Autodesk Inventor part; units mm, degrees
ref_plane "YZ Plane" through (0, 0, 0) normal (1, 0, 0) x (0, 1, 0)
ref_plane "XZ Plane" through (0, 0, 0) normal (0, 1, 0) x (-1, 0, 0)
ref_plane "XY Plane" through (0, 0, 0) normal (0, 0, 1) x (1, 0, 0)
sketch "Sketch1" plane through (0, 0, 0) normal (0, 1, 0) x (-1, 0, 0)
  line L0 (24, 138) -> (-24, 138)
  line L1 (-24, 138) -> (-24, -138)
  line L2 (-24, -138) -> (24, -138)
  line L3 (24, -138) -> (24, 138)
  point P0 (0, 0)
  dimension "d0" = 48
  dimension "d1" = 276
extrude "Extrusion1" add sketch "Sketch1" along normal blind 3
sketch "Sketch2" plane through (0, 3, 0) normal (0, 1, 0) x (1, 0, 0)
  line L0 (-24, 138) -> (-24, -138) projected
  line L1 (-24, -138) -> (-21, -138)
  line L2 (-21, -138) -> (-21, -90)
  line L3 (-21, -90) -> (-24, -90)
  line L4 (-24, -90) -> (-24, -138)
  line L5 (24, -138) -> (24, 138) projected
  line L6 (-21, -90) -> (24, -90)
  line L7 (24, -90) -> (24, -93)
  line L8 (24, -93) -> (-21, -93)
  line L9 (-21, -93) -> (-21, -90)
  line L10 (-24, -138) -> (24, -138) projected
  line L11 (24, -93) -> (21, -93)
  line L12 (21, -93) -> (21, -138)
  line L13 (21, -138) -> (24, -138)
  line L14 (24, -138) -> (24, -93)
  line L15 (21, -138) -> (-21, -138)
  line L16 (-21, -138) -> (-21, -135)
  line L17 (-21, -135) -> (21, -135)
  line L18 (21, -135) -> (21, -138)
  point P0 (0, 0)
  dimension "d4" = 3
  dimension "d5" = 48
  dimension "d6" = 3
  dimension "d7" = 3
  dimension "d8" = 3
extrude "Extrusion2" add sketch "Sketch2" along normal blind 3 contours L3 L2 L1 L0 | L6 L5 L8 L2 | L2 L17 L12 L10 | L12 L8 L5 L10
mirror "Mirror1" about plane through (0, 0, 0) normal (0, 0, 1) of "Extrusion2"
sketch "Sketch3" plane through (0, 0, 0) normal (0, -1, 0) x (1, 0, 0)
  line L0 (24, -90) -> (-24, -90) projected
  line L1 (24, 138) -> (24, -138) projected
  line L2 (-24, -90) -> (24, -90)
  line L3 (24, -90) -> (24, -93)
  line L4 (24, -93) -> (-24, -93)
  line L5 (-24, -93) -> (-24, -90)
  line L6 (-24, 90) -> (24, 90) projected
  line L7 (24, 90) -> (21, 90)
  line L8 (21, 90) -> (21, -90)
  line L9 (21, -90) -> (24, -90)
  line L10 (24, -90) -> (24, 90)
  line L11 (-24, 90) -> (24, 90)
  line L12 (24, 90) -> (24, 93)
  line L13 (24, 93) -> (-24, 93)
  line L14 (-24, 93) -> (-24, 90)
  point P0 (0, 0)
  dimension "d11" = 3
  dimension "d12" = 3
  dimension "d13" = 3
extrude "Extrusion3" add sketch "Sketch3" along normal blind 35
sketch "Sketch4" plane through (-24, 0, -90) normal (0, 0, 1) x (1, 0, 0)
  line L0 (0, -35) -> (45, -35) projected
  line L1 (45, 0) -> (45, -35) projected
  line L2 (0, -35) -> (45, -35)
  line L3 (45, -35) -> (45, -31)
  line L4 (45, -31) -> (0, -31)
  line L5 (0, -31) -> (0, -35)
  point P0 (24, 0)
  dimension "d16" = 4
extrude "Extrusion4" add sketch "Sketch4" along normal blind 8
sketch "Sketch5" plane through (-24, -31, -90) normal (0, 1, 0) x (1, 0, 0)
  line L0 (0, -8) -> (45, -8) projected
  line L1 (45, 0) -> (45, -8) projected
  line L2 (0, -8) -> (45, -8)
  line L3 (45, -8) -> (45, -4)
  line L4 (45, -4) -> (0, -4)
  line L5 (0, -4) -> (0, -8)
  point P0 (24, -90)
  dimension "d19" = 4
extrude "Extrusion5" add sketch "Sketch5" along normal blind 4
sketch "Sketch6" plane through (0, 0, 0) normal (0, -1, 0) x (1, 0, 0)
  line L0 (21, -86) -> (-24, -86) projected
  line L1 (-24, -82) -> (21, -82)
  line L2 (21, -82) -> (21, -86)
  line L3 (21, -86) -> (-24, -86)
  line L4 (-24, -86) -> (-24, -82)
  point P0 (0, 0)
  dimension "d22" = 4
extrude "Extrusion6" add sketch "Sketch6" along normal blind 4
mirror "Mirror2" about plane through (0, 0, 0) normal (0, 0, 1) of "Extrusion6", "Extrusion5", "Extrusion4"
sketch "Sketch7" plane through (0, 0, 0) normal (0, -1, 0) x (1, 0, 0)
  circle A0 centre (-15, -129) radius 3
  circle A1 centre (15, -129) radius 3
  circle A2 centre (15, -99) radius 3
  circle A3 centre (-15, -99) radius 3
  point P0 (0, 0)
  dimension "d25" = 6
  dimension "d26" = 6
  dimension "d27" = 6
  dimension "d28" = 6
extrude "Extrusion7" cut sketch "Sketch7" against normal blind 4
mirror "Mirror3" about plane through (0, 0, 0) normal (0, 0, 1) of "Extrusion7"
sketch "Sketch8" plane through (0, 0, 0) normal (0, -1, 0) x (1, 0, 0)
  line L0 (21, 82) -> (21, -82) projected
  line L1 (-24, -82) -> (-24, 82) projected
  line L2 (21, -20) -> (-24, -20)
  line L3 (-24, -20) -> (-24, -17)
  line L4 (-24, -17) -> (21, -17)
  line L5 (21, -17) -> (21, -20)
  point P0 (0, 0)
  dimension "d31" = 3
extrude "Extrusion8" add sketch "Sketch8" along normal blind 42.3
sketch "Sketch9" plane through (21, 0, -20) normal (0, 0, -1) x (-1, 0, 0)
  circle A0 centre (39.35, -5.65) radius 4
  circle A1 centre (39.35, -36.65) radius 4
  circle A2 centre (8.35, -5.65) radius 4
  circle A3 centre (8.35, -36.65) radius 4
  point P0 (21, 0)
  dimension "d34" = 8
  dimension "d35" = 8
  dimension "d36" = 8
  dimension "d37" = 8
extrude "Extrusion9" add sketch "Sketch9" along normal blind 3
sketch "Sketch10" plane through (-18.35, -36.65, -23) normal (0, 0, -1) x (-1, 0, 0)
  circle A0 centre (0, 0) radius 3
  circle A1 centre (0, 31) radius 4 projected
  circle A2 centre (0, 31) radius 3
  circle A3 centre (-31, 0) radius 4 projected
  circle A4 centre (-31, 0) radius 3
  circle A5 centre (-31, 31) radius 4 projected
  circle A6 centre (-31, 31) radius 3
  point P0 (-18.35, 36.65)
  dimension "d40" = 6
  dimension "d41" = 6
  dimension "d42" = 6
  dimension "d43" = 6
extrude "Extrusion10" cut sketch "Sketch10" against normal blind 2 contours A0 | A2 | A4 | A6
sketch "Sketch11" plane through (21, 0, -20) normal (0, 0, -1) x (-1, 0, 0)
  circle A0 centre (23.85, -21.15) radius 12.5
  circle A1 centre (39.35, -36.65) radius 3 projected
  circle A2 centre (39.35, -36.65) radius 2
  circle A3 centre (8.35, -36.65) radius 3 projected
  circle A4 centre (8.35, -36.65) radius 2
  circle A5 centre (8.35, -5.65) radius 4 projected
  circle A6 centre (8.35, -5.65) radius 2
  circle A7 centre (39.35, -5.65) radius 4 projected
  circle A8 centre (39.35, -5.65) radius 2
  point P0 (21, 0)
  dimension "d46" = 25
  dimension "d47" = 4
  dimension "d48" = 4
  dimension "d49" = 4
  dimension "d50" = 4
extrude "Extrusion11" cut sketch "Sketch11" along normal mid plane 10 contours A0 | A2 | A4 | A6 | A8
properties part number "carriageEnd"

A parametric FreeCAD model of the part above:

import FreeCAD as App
import Part
import Sketcher
from FreeCAD import Vector

doc = App.newDocument("Part")
body = doc.addObject("PartDesign::Body", "Body")

# Sketch on XZ plane
sketch1 = doc.addObject("Sketcher::SketchObject", "Sketch")
body.addObject(sketch1)
sketch1.AttachmentSupport = (doc.XZ_Plane, [""])
sketch1.MapMode = "FlatFace"
sketch1.addGeometry([
    Part.LineSegment(Vector(-24, -138, 0), Vector(-24, 138, 0)),
    Part.LineSegment(Vector(-24, 138, 0), Vector(24, 138, 0)),
    Part.LineSegment(Vector(24, 138, 0), Vector(24, -138, 0)),
    Part.LineSegment(Vector(24, -138, 0), Vector(-24, -138, 0)),
], False)
sketch1.addConstraint([
    Sketcher.Constraint("Coincident", 0, 2, 1, 1),
    Sketcher.Constraint("Coincident", 1, 2, 2, 1),
    Sketcher.Constraint("Coincident", 2, 2, 3, 1),
    Sketcher.Constraint("Coincident", 3, 2, 0, 1),
    Sketcher.Constraint("Vertical", 0),
    Sketcher.Constraint("Horizontal", 1),
    Sketcher.Constraint("Vertical", 2),
    Sketcher.Constraint("Horizontal", 3),
    Sketcher.Constraint("Symmetric", 0, 2, 2, 2, -1, 1),
    Sketcher.Constraint("DistanceX", 1, 1, 1, 2, 48.0),
    Sketcher.Constraint("DistanceY", 0, 1, 0, 2, 276.0),
])
pad1 = doc.addObject("PartDesign::Pad", "Pad")
body.addObject(pad1)
pad1.Profile = sketch1
pad1.Length = 3
pad1.Reversed = True

# Sketch on XZ plane
sketch2 = doc.addObject("Sketcher::SketchObject", "Sketch001")
body.addObject(sketch2)
sketch2.AttachmentSupport = (doc.XZ_Plane, [""])
sketch2.MapMode = "FlatFace"
sketch2.AttachmentOffset = App.Placement(Vector(0, 0, -3), App.Rotation())
sketch2.addGeometry([
    Part.LineSegment(Vector(-24, 90, 0), Vector(-24, 138, 0)),  # 0
    Part.LineSegment(Vector(-24, 138, 0), Vector(24, 138, 0)),  # 1
    Part.LineSegment(Vector(24, 138, 0), Vector(24, 90, 0)),  # 2
    Part.LineSegment(Vector(24, 90, 0), Vector(-24, 90, 0)),  # 3
    Part.LineSegment(Vector(-21, 135, 0), Vector(-21, 93, 0)),  # 4
    Part.LineSegment(Vector(-21, 93, 0), Vector(21, 93, 0)),  # 5
    Part.LineSegment(Vector(21, 93, 0), Vector(21, 135, 0)),  # 6
    Part.LineSegment(Vector(21, 135, 0), Vector(-21, 135, 0)),  # 7
], False)
sketch2.addConstraint([
    Sketcher.Constraint("Coincident", 0, 2, 1, 1),
    Sketcher.Constraint("Coincident", 1, 2, 2, 1),
    Sketcher.Constraint("Coincident", 2, 2, 3, 1),
    Sketcher.Constraint("Coincident", 3, 2, 0, 1),
    Sketcher.Constraint("Coincident", 4, 2, 5, 1),
    Sketcher.Constraint("Coincident", 5, 2, 6, 1),
    Sketcher.Constraint("Coincident", 6, 2, 7, 1),
    Sketcher.Constraint("Coincident", 7, 2, 4, 1),
    Sketcher.Constraint("Vertical", 0),
    Sketcher.Constraint("Horizontal", 1),
    Sketcher.Constraint("Vertical", 2),
    Sketcher.Constraint("Horizontal", 3),
    Sketcher.Constraint("Vertical", 4),
    Sketcher.Constraint("Horizontal", 5),
    Sketcher.Constraint("Vertical", 6),
    Sketcher.Constraint("Horizontal", 7),
    Sketcher.Constraint("Equal", 3, 0),
    Sketcher.Constraint("Equal", 7, 4),
    Sketcher.Constraint("DistanceX", 1, 1, 1, 2, 48.0),
    Sketcher.Constraint("DistanceX", 3, 2, 4, 2, 3.0),
    Sketcher.Constraint("DistanceY", 3, 2, 4, 2, 3.0),
    Sketcher.Constraint("DistanceX", 5, 2, 2, 2, 3.0),
    Sketcher.Constraint("DistanceX", 0, 2, -1, 1, 24.0),
    Sketcher.Constraint("DistanceY", -1, 1, 0, 2, 138.0),
])
pad2 = doc.addObject("PartDesign::Pad", "Pad001")
body.addObject(pad2)
pad2.Profile = sketch2
pad2.Length = 3
pad2.Reversed = True
doc.recompute()

mirrored = doc.addObject("PartDesign::Mirrored", "Mirrored")
body.addObject(mirrored)
mirrored.Originals = [pad2]
mirrored.MirrorPlane = (doc.XY_Plane, [""])
body.Tip = mirrored

# Sketch on XZ plane
sketch3 = doc.addObject("Sketcher::SketchObject", "Sketch002")
body.addObject(sketch3)
sketch3.AttachmentSupport = (doc.XZ_Plane, [""])
sketch3.MapMode = "FlatFace"
sketch3.addGeometry([
    Part.LineSegment(Vector(24, -93, 0), Vector(24, 93, 0)),  # 0
    Part.LineSegment(Vector(24, 93, 0), Vector(-24, 93, 0)),  # 1
    Part.LineSegment(Vector(-24, 93, 0), Vector(-24, 90, 0)),  # 2
    Part.LineSegment(Vector(-24, 90, 0), Vector(21, 90, 0)),  # 3
    Part.LineSegment(Vector(21, 90, 0), Vector(21, -90, 0)),  # 4
    Part.LineSegment(Vector(21, -90, 0), Vector(-24, -90, 0)),  # 5
    Part.LineSegment(Vector(-24, -90, 0), Vector(-24, -93, 0)),  # 6
    Part.LineSegment(Vector(-24, -93, 0), Vector(24, -93, 0)),  # 7
], False)
sketch3.addConstraint([
    Sketcher.Constraint("Coincident", 0, 2, 1, 1),
    Sketcher.Constraint("Coincident", 1, 2, 2, 1),
    Sketcher.Constraint("Coincident", 2, 2, 3, 1),
    Sketcher.Constraint("Coincident", 3, 2, 4, 1),
    Sketcher.Constraint("Coincident", 4, 2, 5, 1),
    Sketcher.Constraint("Coincident", 5, 2, 6, 1),
    Sketcher.Constraint("Coincident", 6, 2, 7, 1),
    Sketcher.Constraint("Coincident", 7, 2, 0, 1),
    Sketcher.Constraint("Vertical", 0),
    Sketcher.Constraint("Horizontal", 1),
    Sketcher.Constraint("Vertical", 2),
    Sketcher.Constraint("Horizontal", 3),
    Sketcher.Constraint("Vertical", 4),
    Sketcher.Constraint("Horizontal", 5),
    Sketcher.Constraint("Vertical", 6),
    Sketcher.Constraint("Horizontal", 7),
    Sketcher.Constraint("Symmetric", 0, 2, 6, 2, -1, 1),
    Sketcher.Constraint("Symmetric", 2, 2, 5, 2, -1),
    Sketcher.Constraint("DistanceY", 2, 2, 2, 1, 3.0),
    Sketcher.Constraint("DistanceX", 3, 2, 0, 2, 3.0),
    Sketcher.Constraint("DistanceX", 1, 2, 1, 1, 48.0),
    Sketcher.Constraint("DistanceY", 0, 1, 0, 2, 186.0),
])
pad3 = doc.addObject("PartDesign::Pad", "Pad002")
body.addObject(pad3)
pad3.Profile = sketch3
pad3.Length = 35

# Sketch on XY plane
sketch4 = doc.addObject("Sketcher::SketchObject", "Sketch003")
body.addObject(sketch4)
sketch4.AttachmentSupport = (doc.XY_Plane, [""])
sketch4.MapMode = "FlatFace"
sketch4.AttachmentOffset = App.Placement(Vector(0, 0, -90), App.Rotation())
sketch4.addGeometry([
    Part.LineSegment(Vector(-24, -31, 0), Vector(-24, -35, 0)),
    Part.LineSegment(Vector(-24, -35, 0), Vector(21, -35, 0)),
    Part.LineSegment(Vector(21, -35, 0), Vector(21, -31, 0)),
    Part.LineSegment(Vector(21, -31, 0), Vector(-24, -31, 0)),
], False)
sketch4.addConstraint([
    Sketcher.Constraint("Coincident", 0, 2, 1, 1),
    Sketcher.Constraint("Coincident", 1, 2, 2, 1),
    Sketcher.Constraint("Coincident", 2, 2, 3, 1),
    Sketcher.Constraint("Coincident", 3, 2, 0, 1),
    Sketcher.Constraint("Vertical", 0),
    Sketcher.Constraint("Horizontal", 1),
    Sketcher.Constraint("Vertical", 2),
    Sketcher.Constraint("Horizontal", 3),
    Sketcher.Constraint("DistanceY", 0, 2, 0, 1, 4.0),
    Sketcher.Constraint("DistanceX", 1, 1, 1, 2, 45.0),
    Sketcher.Constraint("DistanceX", 0, 2, -1, 1, 24.0),
    Sketcher.Constraint("DistanceY", 0, 2, -1, 1, 35.0),
])
pad4 = doc.addObject("PartDesign::Pad", "Pad003")
body.addObject(pad4)
pad4.Profile = sketch4
pad4.Length = 8

# Sketch on XZ plane
sketch5 = doc.addObject("Sketcher::SketchObject", "Sketch004")
body.addObject(sketch5)
sketch5.AttachmentSupport = (doc.XZ_Plane, [""])
sketch5.MapMode = "FlatFace"
sketch5.AttachmentOffset = App.Placement(Vector(0, 0, 31), App.Rotation())
sketch5.addGeometry([
    Part.LineSegment(Vector(-24, -86, 0), Vector(-24, -82, 0)),
    Part.LineSegment(Vector(-24, -82, 0), Vector(21, -82, 0)),
    Part.LineSegment(Vector(21, -82, 0), Vector(21, -86, 0)),
    Part.LineSegment(Vector(21, -86, 0), Vector(-24, -86, 0)),
], False)
sketch5.addConstraint([
    Sketcher.Constraint("Coincident", 0, 2, 1, 1),
    Sketcher.Constraint("Coincident", 1, 2, 2, 1),
    Sketcher.Constraint("Coincident", 2, 2, 3, 1),
    Sketcher.Constraint("Coincident", 3, 2, 0, 1),
    Sketcher.Constraint("Vertical", 0),
    Sketcher.Constraint("Horizontal", 1),
    Sketcher.Constraint("Vertical", 2),
    Sketcher.Constraint("Horizontal", 3),
    Sketcher.Constraint("DistanceY", 0, 1, 0, 2, 4.0),
    Sketcher.Constraint("DistanceX", 1, 1, 1, 2, 45.0),
    Sketcher.Constraint("DistanceX", 0, 2, -1, 1, 24.0),
    Sketcher.Constraint("DistanceY", 0, 2, -1, 1, 82.0),
])
pad5 = doc.addObject("PartDesign::Pad", "Pad004")
body.addObject(pad5)
pad5.Profile = sketch5
pad5.Length = 4
pad5.Reversed = True

# Sketch on XZ plane
sketch6 = doc.addObject("Sketcher::SketchObject", "Sketch005")
body.addObject(sketch6)
sketch6.AttachmentSupport = (doc.XZ_Plane, [""])
sketch6.MapMode = "FlatFace"
sketch6.addGeometry([
    Part.LineSegment(Vector(-24, -86, 0), Vector(21, -86, 0)),
    Part.LineSegment(Vector(21, -86, 0), Vector(21, -82, 0)),
    Part.LineSegment(Vector(21, -82, 0), Vector(-24, -82, 0)),
    Part.LineSegment(Vector(-24, -82, 0), Vector(-24, -86, 0)),
], False)
sketch6.addConstraint([
    Sketcher.Constraint("Coincident", 0, 2, 1, 1),
    Sketcher.Constraint("Coincident", 1, 2, 2, 1),
    Sketcher.Constraint("Coincident", 2, 2, 3, 1),
    Sketcher.Constraint("Coincident", 3, 2, 0, 1),
    Sketcher.Constraint("Horizontal", 0),
    Sketcher.Constraint("Vertical", 1),
    Sketcher.Constraint("Horizontal", 2),
    Sketcher.Constraint("Vertical", 3),
    Sketcher.Constraint("DistanceY", 1, 1, 1, 2, 4.0),
    Sketcher.Constraint("DistanceX", 0, 1, 0, 2, 45.0),
    Sketcher.Constraint("DistanceX", -1, 1, 0, 2, 21.0),
    Sketcher.Constraint("DistanceY", 0, 2, -1, 1, 86.0),
])
pad6 = doc.addObject("PartDesign::Pad", "Pad005")
body.addObject(pad6)
pad6.Profile = sketch6
pad6.Length = 4
doc.recompute()

mirrored2 = doc.addObject("PartDesign::Mirrored", "Mirrored001")
body.addObject(mirrored2)
mirrored2.Originals = [pad6, pad5, pad4]
mirrored2.MirrorPlane = (doc.XY_Plane, [""])
body.Tip = mirrored2

# Sketch on XZ plane
sketch7 = doc.addObject("Sketcher::SketchObject", "Sketch006")
body.addObject(sketch7)
sketch7.AttachmentSupport = (doc.XZ_Plane, [""])
sketch7.MapMode = "FlatFace"
sketch7.addGeometry([
    Part.Circle(Vector(-15, -129, 0), Vector(0, 0, 1), 3),
    Part.Circle(Vector(15, -129, 0), Vector(0, 0, 1), 3),
    Part.Circle(Vector(15, -99, 0), Vector(0, 0, 1), 3),
    Part.Circle(Vector(-15, -99, 0), Vector(0, 0, 1), 3),
], False)
sketch7.addConstraint([
    Sketcher.Constraint("Equal", 0, 1),
    Sketcher.Constraint("Equal", 1, 2),
    Sketcher.Constraint("Equal", 2, 3),
    Sketcher.Constraint("Symmetric", 0, 3, 1, 3, -2),
    Sketcher.Constraint("Symmetric", 2, 3, 3, 3, -2),
    Sketcher.Constraint("Vertical", 1, 3, 2, 3),
    Sketcher.Constraint("Diameter", 0, 6.0),
    Sketcher.Constraint("DistanceX", 0, 3, -1, 1, 15.0),
    Sketcher.Constraint("DistanceY", 0, 3, -1, 1, 129.0),
    Sketcher.Constraint("DistanceY", 2, 3, -1, 1, 99.0),
])
pocket1 = doc.addObject("PartDesign::Pocket", "Pocket")
body.addObject(pocket1)
pocket1.Profile = sketch7
pocket1.Length = 4
doc.recompute()

mirrored3 = doc.addObject("PartDesign::Mirrored", "Mirrored002")
body.addObject(mirrored3)
mirrored3.Originals = [pocket1]
mirrored3.MirrorPlane = (doc.XY_Plane, [""])
body.Tip = mirrored3

# Sketch on XZ plane
sketch8 = doc.addObject("Sketcher::SketchObject", "Sketch007")
body.addObject(sketch8)
sketch8.AttachmentSupport = (doc.XZ_Plane, [""])
sketch8.MapMode = "FlatFace"
sketch8.addGeometry([
    Part.LineSegment(Vector(21, -20, 0), Vector(21, -17, 0)),
    Part.LineSegment(Vector(21, -17, 0), Vector(-24, -17, 0)),
    Part.LineSegment(Vector(-24, -17, 0), Vector(-24, -20, 0)),
    Part.LineSegment(Vector(-24, -20, 0), Vector(21, -20, 0)),
], False)
sketch8.addConstraint([
    Sketcher.Constraint("Coincident", 0, 2, 1, 1),
    Sketcher.Constraint("Coincident", 1, 2, 2, 1),
    Sketcher.Constraint("Coincident", 2, 2, 3, 1),
    Sketcher.Constraint("Coincident", 3, 2, 0, 1),
    Sketcher.Constraint("Vertical", 0),
    Sketcher.Constraint("Horizontal", 1),
    Sketcher.Constraint("Vertical", 2),
    Sketcher.Constraint("Horizontal", 3),
    Sketcher.Constraint("DistanceY", 0, 1, 0, 2, 3.0),
    Sketcher.Constraint("DistanceX", 1, 2, 1, 1, 45.0),
    Sketcher.Constraint("DistanceX", -1, 1, 0, 2, 21.0),
    Sketcher.Constraint("DistanceY", 0, 2, -1, 1, 17.0),
])
pad7 = doc.addObject("PartDesign::Pad", "Pad006")
body.addObject(pad7)
pad7.Profile = sketch8
pad7.Length = 42.3

# Sketch on XY plane
sketch9 = doc.addObject("Sketcher::SketchObject", "Sketch008")
body.addObject(sketch9)
sketch9.AttachmentSupport = (doc.XY_Plane, [""])
sketch9.MapMode = "FlatFace"
sketch9.AttachmentOffset = App.Placement(Vector(0, 0, -20), App.Rotation())
sketch9.addGeometry([
    Part.Circle(Vector(-18.4, -5.7, 0), Vector(0, 0, 1), 4),
    Part.Circle(Vector(-18.4, -36.6, 0), Vector(0, 0, 1), 4),
    Part.Circle(Vector(12.7, -5.7, 0), Vector(0, 0, 1), 4),
    Part.Circle(Vector(12.7, -36.6, 0), Vector(0, 0, 1), 4),
], False)
sketch9.addConstraint([
    Sketcher.Constraint("Equal", 0, 1),
    Sketcher.Constraint("Equal", 1, 2),
    Sketcher.Constraint("Equal", 2, 3),
    Sketcher.Constraint("Horizontal", 0, 3, 2, 3),
    Sketcher.Constraint("Horizontal", 1, 3, 3, 3),
    Sketcher.Constraint("Vertical", 0, 3, 1, 3),
    Sketcher.Constraint("Vertical", 2, 3, 3, 3),
    Sketcher.Constraint("Diameter", 0, 8.0),
    Sketcher.Constraint("DistanceY", 1, 3, 0, 3, 31.0),
    Sketcher.Constraint("DistanceX", 0, 3, 2, 3, 31.0),
    Sketcher.Constraint("DistanceX", 0, 3, -1, 1, 18.35),
    Sketcher.Constraint("DistanceY", 0, 3, -1, 1, 5.65),
])
pad8 = doc.addObject("PartDesign::Pad", "Pad007")
body.addObject(pad8)
pad8.Profile = sketch9
pad8.Length = 3
pad8.Reversed = True

# Sketch on XY plane
sketch10 = doc.addObject("Sketcher::SketchObject", "Sketch009")
body.addObject(sketch10)
sketch10.AttachmentSupport = (doc.XY_Plane, [""])
sketch10.MapMode = "FlatFace"
sketch10.AttachmentOffset = App.Placement(Vector(0, 0, -23), App.Rotation())
sketch10.addGeometry([
    Part.Circle(Vector(-18.4, -36.6, 0), Vector(0, 0, 1), 3),
    Part.Circle(Vector(-18.4, -5.7, 0), Vector(0, 0, 1), 3),
    Part.Circle(Vector(12.7, -36.6, 0), Vector(0, 0, 1), 3),
    Part.Circle(Vector(12.7, -5.7, 0), Vector(0, 0, 1), 3),
], False)
sketch10.addConstraint([
    Sketcher.Constraint("Equal", 0, 1),
    Sketcher.Constraint("Equal", 1, 2),
    Sketcher.Constraint("Equal", 2, 3),
    Sketcher.Constraint("Horizontal", 0, 3, 2, 3),
    Sketcher.Constraint("Horizontal", 1, 3, 3, 3),
    Sketcher.Constraint("Vertical", 0, 3, 1, 3),
    Sketcher.Constraint("Vertical", 2, 3, 3, 3),
    Sketcher.Constraint("Diameter", 0, 6.0),
    Sketcher.Constraint("DistanceY", 0, 3, 1, 3, 31.0),
    Sketcher.Constraint("DistanceX", 0, 3, 2, 3, 31.0),
    Sketcher.Constraint("DistanceX", 0, 3, -1, 1, 18.35),
    Sketcher.Constraint("DistanceY", 0, 3, -1, 1, 36.65),
])
pocket2 = doc.addObject("PartDesign::Pocket", "Pocket001")
body.addObject(pocket2)
pocket2.Profile = sketch10
pocket2.Length = 2
pocket2.Reversed = True

# Sketch on XY plane
sketch11 = doc.addObject("Sketcher::SketchObject", "Sketch010")
body.addObject(sketch11)
sketch11.AttachmentSupport = (doc.XY_Plane, [""])
sketch11.MapMode = "FlatFace"
sketch11.AttachmentOffset = App.Placement(Vector(0, 0, -20), App.Rotation())
sketch11.addGeometry([
    Part.Circle(Vector(-2.9, -21.1, 0), Vector(0, 0, 1), 12.5),  # 0
    Part.Circle(Vector(-18.4, -36.6, 0), Vector(0, 0, 1), 2),  # 1
    Part.Circle(Vector(12.7, -36.6, 0), Vector(0, 0, 1), 2),  # 2
    Part.Circle(Vector(12.7, -5.7, 0), Vector(0, 0, 1), 2),  # 3
    Part.Circle(Vector(-18.4, -5.7, 0), Vector(0, 0, 1), 2),  # 4
], False)
sketch11.addConstraint([
    Sketcher.Constraint("Equal", 1, 2),
    Sketcher.Constraint("Equal", 2, 3),
    Sketcher.Constraint("Equal", 3, 4),
    Sketcher.Constraint("Horizontal", 1, 3, 2, 3),
    Sketcher.Constraint("Horizontal", 3, 3, 4, 3),
    Sketcher.Constraint("Vertical", 2, 3, 3, 3),
    Sketcher.Constraint("Vertical", 1, 3, 4, 3),
    Sketcher.Constraint("Diameter", 0, 25.0),
    Sketcher.Constraint("Diameter", 1, 4.0),
    Sketcher.Constraint("DistanceX", 1, 3, 2, 3, 31.0),
    Sketcher.Constraint("DistanceY", 2, 3, 3, 3, 31.0),
    Sketcher.Constraint("DistanceX", 1, 3, 0, 3, 15.5),
    Sketcher.Constraint("DistanceY", 1, 3, 0, 3, 15.5),
    Sketcher.Constraint("DistanceX", 0, 3, -1, 1, 2.85),
    Sketcher.Constraint("DistanceY", 0, 3, -1, 1, 21.15),
])
pocket3 = doc.addObject("PartDesign::Pocket", "Pocket002")
body.addObject(pocket3)
pocket3.Profile = sketch11
pocket3.Length = 10
pocket3.Midplane = True

doc.recompute()
